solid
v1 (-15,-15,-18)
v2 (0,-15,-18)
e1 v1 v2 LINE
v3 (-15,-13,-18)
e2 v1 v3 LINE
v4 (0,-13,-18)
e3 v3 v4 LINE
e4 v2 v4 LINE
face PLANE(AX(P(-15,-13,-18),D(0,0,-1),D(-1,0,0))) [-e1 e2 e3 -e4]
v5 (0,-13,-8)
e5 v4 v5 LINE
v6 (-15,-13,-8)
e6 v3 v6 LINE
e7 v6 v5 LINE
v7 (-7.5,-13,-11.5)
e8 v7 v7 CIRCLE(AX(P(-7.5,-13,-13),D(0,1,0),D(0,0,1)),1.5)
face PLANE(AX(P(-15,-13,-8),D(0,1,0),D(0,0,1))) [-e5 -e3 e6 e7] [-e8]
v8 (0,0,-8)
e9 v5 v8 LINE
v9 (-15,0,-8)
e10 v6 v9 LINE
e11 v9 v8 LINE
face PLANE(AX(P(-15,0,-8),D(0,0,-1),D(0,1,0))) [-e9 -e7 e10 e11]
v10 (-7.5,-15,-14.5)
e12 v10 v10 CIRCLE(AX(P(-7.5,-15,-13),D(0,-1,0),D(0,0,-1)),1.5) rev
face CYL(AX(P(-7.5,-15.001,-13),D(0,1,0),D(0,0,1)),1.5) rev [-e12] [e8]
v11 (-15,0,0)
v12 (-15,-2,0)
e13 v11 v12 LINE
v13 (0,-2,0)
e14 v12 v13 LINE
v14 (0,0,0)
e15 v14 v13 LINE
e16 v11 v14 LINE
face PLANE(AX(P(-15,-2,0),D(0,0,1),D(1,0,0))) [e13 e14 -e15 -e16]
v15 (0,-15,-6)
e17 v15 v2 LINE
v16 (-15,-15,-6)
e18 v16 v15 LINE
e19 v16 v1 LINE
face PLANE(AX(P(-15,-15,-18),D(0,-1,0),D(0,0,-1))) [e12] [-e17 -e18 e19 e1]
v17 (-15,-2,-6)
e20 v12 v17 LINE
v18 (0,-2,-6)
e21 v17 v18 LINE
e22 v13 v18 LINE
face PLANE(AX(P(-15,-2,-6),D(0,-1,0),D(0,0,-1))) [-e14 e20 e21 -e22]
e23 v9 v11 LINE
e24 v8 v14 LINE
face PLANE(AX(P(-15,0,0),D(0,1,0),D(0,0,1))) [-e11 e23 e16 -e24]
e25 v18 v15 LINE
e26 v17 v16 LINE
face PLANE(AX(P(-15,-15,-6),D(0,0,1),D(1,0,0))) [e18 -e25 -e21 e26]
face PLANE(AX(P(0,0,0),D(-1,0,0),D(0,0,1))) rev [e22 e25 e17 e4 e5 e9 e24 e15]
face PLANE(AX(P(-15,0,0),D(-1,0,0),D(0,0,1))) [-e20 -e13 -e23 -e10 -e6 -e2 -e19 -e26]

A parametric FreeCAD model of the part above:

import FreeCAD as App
import Part
import Sketcher

V = App.Vector


def add_polygon(sketch, points):
    """Adds a closed chain of lines whose ends are joined by coincident constraints."""
    first, n = sketch.GeometryCount, len(points)
    for a, b in zip(points, points[1:] + points[:1]):
        sketch.addGeometry(Part.LineSegment(App.Vector(*a, 0), App.Vector(*b, 0)), False)
    for i in range(n):
        sketch.addConstraint(Sketcher.Constraint("Coincident", first + i, 2, first + (i + 1) % n, 1))

doc = App.newDocument("Part")
params = doc.addObject("Spreadsheet::Sheet", "Params")
for row, (alias, value) in enumerate([
    ("sketch1_width", "2 mm"),
    ("sketch1_width2", "13 mm"),
    ("sketch1_height", "8 mm"),
    ("sketch1_height2", "6 mm"),
    ("sketch1_height3", "12 mm"),
    ("pad1_length", "15 mm"),
    ("sketch2_diameter", "3 mm"),
], start=1):
    params.set(f"A{row}", alias)
    params.set(f"B{row}", "=" + value)
    params.setAlias(f"B{row}", alias)

body = doc.addObject("PartDesign::Body", "Body")

# Sketch on YZ plane
sketch1 = doc.addObject("Sketcher::SketchObject", "Sketch")
body.addObject(sketch1)
sketch1.AttachmentSupport = (doc.YZ_Plane, [""])
sketch1.MapMode = "FlatFace"
add_polygon(sketch1, [(0, -8), (0, 0), (-2, 0), (-2, -6), (-15, -6), (-15, -18), (-13, -18), (-13, -8)])  # lines 0-7
sketch1.addConstraint(Sketcher.Constraint("Vertical", 0))
sketch1.addConstraint(Sketcher.Constraint("Horizontal", 1))
sketch1.addConstraint(Sketcher.Constraint("Vertical", 2))
sketch1.addConstraint(Sketcher.Constraint("Horizontal", 3))
sketch1.addConstraint(Sketcher.Constraint("Vertical", 4))
sketch1.addConstraint(Sketcher.Constraint("Horizontal", 5))
sketch1.addConstraint(Sketcher.Constraint("Vertical", 6))
sketch1.addConstraint(Sketcher.Constraint("Horizontal", 7))
sketch1.addConstraint(Sketcher.Constraint("Coincident", 0, 2, -1, 1))
sketch1.addConstraint(Sketcher.Constraint("Equal", 1, 5))
sketch1.addConstraint(Sketcher.Constraint("DistanceX", 1, 2, 1, 1, 2.0))
sketch1.addConstraint(Sketcher.Constraint("DistanceX", 3, 2, 3, 1, 13.0))
sketch1.addConstraint(Sketcher.Constraint("DistanceY", 0, 1, 0, 2, 8.0))
sketch1.addConstraint(Sketcher.Constraint("DistanceY", 2, 2, 2, 1, 6.0))
sketch1.addConstraint(Sketcher.Constraint("DistanceY", 4, 2, 4, 1, 12.0))
sketch1.setExpression("Constraints[18]", "Params.sketch1_width")
sketch1.setExpression("Constraints[19]", "Params.sketch1_width2")
sketch1.setExpression("Constraints[20]", "Params.sketch1_height")
sketch1.setExpression("Constraints[21]", "Params.sketch1_height2")
sketch1.setExpression("Constraints[22]", "Params.sketch1_height3")
pad1 = doc.addObject("PartDesign::Pad", "Pad")
body.addObject(pad1)
pad1.Profile = sketch1
pad1.setExpression("Length", "Params.pad1_length")
pad1.Reversed = True

# Sketch on XZ plane
sketch2 = doc.addObject("Sketcher::SketchObject", "Sketch001")
body.addObject(sketch2)
sketch2.AttachmentSupport = (doc.XZ_Plane, [""])
sketch2.MapMode = "FlatFace"
sketch2.AttachmentOffset = App.Placement(V(0, 0, 13), App.Rotation())
sketch2.addGeometry(Part.Circle(V(-7.5, -13, 0), V(0, 0, 1), 1.5), False)
sketch2.addConstraint(Sketcher.Constraint("Diameter", 0, 3.0))
sketch2.addConstraint(Sketcher.Constraint("DistanceY", 0, 3, -1, 1, 13.0))
sketch2.addConstraint(Sketcher.Constraint("DistanceX", 0, 3, -1, 1, 7.5))
sketch2.setExpression("Constraints[0]", "Params.sketch2_diameter")
pocket1 = doc.addObject("PartDesign::Pocket", "Pocket")
body.addObject(pocket1)
pocket1.Profile = sketch2
pocket1.Type = "UpToFirst"
pocket1.Reversed = True

doc.recompute()
